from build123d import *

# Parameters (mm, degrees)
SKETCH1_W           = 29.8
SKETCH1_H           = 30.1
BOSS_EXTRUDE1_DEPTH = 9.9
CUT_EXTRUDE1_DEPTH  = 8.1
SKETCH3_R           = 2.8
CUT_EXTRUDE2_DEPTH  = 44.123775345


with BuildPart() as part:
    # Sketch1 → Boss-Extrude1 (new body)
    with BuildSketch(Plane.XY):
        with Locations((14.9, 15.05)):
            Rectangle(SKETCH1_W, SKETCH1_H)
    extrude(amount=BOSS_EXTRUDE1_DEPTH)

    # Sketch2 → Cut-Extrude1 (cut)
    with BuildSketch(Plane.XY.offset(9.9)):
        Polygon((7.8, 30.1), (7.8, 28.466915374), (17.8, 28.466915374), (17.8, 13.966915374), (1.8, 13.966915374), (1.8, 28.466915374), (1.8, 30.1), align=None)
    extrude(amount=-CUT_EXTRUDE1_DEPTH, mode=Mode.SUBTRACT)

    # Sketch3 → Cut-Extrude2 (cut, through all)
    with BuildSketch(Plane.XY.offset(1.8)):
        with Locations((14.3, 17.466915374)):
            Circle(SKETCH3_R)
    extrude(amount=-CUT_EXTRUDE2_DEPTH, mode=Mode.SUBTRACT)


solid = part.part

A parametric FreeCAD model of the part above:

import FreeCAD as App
import Part
import Sketcher


def add_polygon(sketch, points):
    """Adds a closed chain of lines whose ends are joined by coincident constraints."""
    first, n = sketch.GeometryCount, len(points)
    for a, b in zip(points, points[1:] + points[:1]):
        sketch.addGeometry(Part.LineSegment(App.Vector(*a, 0), App.Vector(*b, 0)), False)
    for i in range(n):
        sketch.addConstraint(Sketcher.Constraint("Coincident", first + i, 2, first + (i + 1) % n, 1))

doc = App.newDocument("Part")
params = doc.addObject("Spreadsheet::Sheet", "Params")
for row, (alias, value) in enumerate([
    ("sketch1_width", "29.8 mm"),
    ("sketch1_height", "30.1 mm"),
    ("pad1_length", "9.9 mm"),
    ("sketch2_width", "6 mm"),
    ("sketch2_width2", "16 mm"),
    ("sketch2_height", "14.5 mm"),
    ("pocket1_length", "8.1 mm"),
    ("sketch3_diameter", "5.6 mm"),
], start=1):
    params.set(f"A{row}", alias)
    params.set(f"B{row}", "=" + value)
    params.setAlias(f"B{row}", alias)

body = doc.addObject("PartDesign::Body", "Body")

sketch1 = body.newObject("Sketcher::SketchObject", "Sketch")
sketch1.AttachmentSupport = (doc.getObject("XY_Plane"), [""])
sketch1.MapMode = "FlatFace"
add_polygon(sketch1, [(0, 30), (0, 0), (30, 0), (30, 30)])
sketch1.addConstraint(Sketcher.Constraint("Vertical", 0))
sketch1.addConstraint(Sketcher.Constraint("Horizontal", 1))
sketch1.addConstraint(Sketcher.Constraint("Vertical", 2))
sketch1.addConstraint(Sketcher.Constraint("Horizontal", 3))
sketch1.addConstraint(Sketcher.Constraint("Coincident", 0, 2, -1, 1))
sketch1.addConstraint(Sketcher.Constraint("DistanceX", 1, 1, 1, 2, 29.8))
sketch1.addConstraint(Sketcher.Constraint("DistanceY", 0, 2, 0, 1, 30.1))
sketch1.setExpression("Constraints[9]", "Params.sketch1_width")
sketch1.setExpression("Constraints[10]", "Params.sketch1_height")
pad1 = body.newObject("PartDesign::Pad", "Pad")
pad1.Profile = sketch1
pad1.setExpression("Length", "Params.pad1_length")

sketch2 = body.newObject("Sketcher::SketchObject", "Sketch001")
sketch2.AttachmentSupport = (doc.getObject("XY_Plane"), [""])
sketch2.MapMode = "FlatFace"
sketch2.AttachmentOffset = App.Placement(App.Vector(0, 0, 9.9), App.Rotation())
add_polygon(sketch2, [(7.8, 28.5), (7.8, 30.1), (1.8, 30.1), (1.8, 14), (17.8, 14), (17.8, 28.5)])
sketch2.addConstraint(Sketcher.Constraint("Vertical", 0))
sketch2.addConstraint(Sketcher.Constraint("Horizontal", 1))
sketch2.addConstraint(Sketcher.Constraint("Vertical", 2))
sketch2.addConstraint(Sketcher.Constraint("Horizontal", 3))
sketch2.addConstraint(Sketcher.Constraint("Vertical", 4))
sketch2.addConstraint(Sketcher.Constraint("Horizontal", 5))
sketch2.addConstraint(Sketcher.Constraint("DistanceX", 1, 2, 1, 1, 6.0))
sketch2.addConstraint(Sketcher.Constraint("DistanceX", 3, 1, 3, 2, 16.0))
sketch2.addConstraint(Sketcher.Constraint("DistanceY", 4, 1, 4, 2, 14.5))
sketch2.addConstraint(Sketcher.Constraint("DistanceX", -1, 1, 0, 2, 7.8))
sketch2.addConstraint(Sketcher.Constraint("DistanceY", -1, 1, 0, 2, 30.1))
sketch2.addConstraint(Sketcher.Constraint("DistanceY", 0, 1, 0, 2, 1.633085))
sketch2.setExpression("Constraints[12]", "Params.sketch2_width")
sketch2.setExpression("Constraints[13]", "Params.sketch2_width2")
sketch2.setExpression("Constraints[14]", "Params.sketch2_height")
pocket1 = body.newObject("PartDesign::Pocket", "Pocket")
pocket1.Profile = sketch2
pocket1.setExpression("Length", "Params.pocket1_length")

sketch3 = body.newObject("Sketcher::SketchObject", "Sketch002")
sketch3.AttachmentSupport = (doc.getObject("XY_Plane"), [""])
sketch3.MapMode = "FlatFace"
sketch3.AttachmentOffset = App.Placement(App.Vector(0, 0, 1.8), App.Rotation())
sketch3.addGeometry(Part.Circle(App.Vector(14.3, 17.5, 0), App.Vector(0, 0, 1), 2.8), False)
sketch3.addConstraint(Sketcher.Constraint("Diameter", 0, 5.6))
sketch3.addConstraint(Sketcher.Constraint("DistanceX", -1, 1, 0, 3, 14.3))
sketch3.addConstraint(Sketcher.Constraint("DistanceY", -1, 1, 0, 3, 17.466915))
sketch3.setExpression("Constraints[0]", "Params.sketch3_diameter")
pocket2 = body.newObject("PartDesign::Pocket", "Pocket001")
pocket2.Profile = sketch3
pocket2.Type = "ThroughAll"

doc.recompute()
